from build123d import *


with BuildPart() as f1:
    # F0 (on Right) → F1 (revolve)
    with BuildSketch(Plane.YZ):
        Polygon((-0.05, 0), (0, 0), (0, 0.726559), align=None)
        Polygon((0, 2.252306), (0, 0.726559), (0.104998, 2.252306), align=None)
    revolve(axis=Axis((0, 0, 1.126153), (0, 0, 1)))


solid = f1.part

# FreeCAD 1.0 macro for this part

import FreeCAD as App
import Part
import Sketcher

V = App.Vector


def add_polygon(sketch, points):
    """Adds a closed chain of lines whose ends are joined by coincident constraints."""
    first, n = sketch.GeometryCount, len(points)
    for a, b in zip(points, points[1:] + points[:1]):
        sketch.addGeometry(Part.LineSegment(App.Vector(*a, 0), App.Vector(*b, 0)), False)
    for i in range(n):
        sketch.addConstraint(Sketcher.Constraint("Coincident", first + i, 2, first + (i + 1) % n, 1))

doc = App.newDocument("Part")
body = doc.addObject("PartDesign::Body", "Body")
body.AllowCompound = True

sketch1 = body.newObject("Sketcher::SketchObject", "Sketch")
sketch1.AttachmentSupport = (doc.getObject("YZ_Plane"), [""])
sketch1.MapMode = "FlatFace"
add_polygon(sketch1, [(-0.05, 0), (0, 0), (0, 0.726559)])
add_polygon(sketch1, [(0, 2.252306), (0, 0.726559), (0.104998, 2.252306)])
sketch1.addConstraint([
    Sketcher.Constraint("Horizontal", 0),
    Sketcher.Constraint("Vertical", 1),
    Sketcher.Constraint("Vertical", 3),
    Sketcher.Constraint("Horizontal", 5),
    Sketcher.Constraint("Coincident", 0, 2, -1, 1),
    Sketcher.Constraint("Coincident", 3, 2, 1, 2),
    Sketcher.Constraint("Parallel", 2, 4),
    Sketcher.Constraint("DistanceX", 0, 1, 0, 2, 0.05),
    Sketcher.Constraint("DistanceY", 1, 1, 1, 2, 0.726559),
    Sketcher.Constraint("DistanceX", 5, 2, 5, 1, 0.104998),
])
revolution = body.newObject("PartDesign::Revolution", "Revolution")
revolution.Profile = sketch1
revolution.ReferenceAxis = (sketch1, ["V_Axis"])
revolution.Angle = 360

doc.recompute()
